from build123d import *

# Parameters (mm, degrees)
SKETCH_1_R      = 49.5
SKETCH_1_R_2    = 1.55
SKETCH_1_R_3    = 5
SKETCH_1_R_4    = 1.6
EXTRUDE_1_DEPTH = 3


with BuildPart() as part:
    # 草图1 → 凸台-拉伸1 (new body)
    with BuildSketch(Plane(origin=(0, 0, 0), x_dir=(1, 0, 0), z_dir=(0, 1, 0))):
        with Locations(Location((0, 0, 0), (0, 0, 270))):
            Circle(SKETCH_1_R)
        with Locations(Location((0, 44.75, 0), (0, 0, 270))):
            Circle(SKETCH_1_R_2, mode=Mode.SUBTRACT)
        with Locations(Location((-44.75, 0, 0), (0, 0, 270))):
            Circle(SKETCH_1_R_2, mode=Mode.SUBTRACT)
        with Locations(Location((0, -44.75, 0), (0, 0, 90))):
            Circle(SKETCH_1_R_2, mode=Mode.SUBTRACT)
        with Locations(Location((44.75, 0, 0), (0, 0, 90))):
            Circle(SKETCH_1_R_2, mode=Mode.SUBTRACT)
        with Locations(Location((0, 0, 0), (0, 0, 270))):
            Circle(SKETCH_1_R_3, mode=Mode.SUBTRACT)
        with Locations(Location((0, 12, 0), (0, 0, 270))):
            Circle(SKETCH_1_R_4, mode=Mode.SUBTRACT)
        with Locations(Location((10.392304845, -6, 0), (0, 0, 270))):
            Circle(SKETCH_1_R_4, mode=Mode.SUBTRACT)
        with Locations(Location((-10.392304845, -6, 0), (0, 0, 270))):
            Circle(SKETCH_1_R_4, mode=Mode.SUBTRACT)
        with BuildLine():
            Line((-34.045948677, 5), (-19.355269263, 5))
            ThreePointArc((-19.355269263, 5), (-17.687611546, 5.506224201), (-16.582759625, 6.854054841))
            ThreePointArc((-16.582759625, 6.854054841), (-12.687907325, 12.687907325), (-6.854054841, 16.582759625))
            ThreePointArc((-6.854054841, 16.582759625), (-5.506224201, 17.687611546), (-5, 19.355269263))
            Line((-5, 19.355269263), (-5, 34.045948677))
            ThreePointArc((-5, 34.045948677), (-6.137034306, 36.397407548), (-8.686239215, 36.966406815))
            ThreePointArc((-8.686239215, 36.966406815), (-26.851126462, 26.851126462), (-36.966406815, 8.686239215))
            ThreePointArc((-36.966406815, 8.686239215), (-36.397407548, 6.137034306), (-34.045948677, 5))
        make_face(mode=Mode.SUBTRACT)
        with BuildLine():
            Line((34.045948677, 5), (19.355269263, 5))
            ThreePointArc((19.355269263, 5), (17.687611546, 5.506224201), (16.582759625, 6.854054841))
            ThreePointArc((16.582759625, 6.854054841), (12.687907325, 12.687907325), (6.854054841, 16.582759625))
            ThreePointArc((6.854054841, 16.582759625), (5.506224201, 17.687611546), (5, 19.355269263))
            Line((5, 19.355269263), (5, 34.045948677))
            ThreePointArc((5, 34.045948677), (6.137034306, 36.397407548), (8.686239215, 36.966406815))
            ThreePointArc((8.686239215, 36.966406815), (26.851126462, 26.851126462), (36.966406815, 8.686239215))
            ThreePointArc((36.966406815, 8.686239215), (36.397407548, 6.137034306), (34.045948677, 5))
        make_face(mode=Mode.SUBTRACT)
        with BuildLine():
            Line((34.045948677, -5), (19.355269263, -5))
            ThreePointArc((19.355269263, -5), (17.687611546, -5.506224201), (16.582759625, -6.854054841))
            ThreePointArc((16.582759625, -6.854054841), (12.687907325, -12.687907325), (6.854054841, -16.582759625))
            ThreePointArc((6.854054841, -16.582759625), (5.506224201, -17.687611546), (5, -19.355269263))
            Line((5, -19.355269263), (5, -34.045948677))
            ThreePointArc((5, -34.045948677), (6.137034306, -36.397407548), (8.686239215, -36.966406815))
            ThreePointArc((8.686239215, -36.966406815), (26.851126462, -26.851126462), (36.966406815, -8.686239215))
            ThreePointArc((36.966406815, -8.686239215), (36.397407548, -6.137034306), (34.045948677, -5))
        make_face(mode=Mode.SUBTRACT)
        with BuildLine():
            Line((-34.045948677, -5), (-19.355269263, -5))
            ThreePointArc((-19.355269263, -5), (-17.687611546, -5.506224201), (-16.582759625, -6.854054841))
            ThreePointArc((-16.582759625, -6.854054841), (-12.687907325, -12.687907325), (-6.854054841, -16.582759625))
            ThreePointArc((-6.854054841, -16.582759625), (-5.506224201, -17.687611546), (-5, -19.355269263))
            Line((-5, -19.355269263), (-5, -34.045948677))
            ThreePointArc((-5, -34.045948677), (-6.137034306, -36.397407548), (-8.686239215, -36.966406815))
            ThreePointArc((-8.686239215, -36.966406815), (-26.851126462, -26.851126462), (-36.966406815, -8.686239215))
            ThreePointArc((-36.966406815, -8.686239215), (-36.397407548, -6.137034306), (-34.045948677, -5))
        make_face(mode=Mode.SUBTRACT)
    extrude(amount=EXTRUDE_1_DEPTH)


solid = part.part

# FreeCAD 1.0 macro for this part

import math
import FreeCAD as App
import Part
import Sketcher

V = App.Vector
Q = App.Units.Quantity

doc = App.newDocument("Part")
body = doc.addObject("PartDesign::Body", "Body")

sketch1 = body.newObject("Sketcher::SketchObject", "Sketch")
sketch1.AttachmentSupport = (doc.getObject("XZ_Plane"), [""])
sketch1.MapMode = "FlatFace"
sketch1.addGeometry(Part.Circle(V(0, 0, 0), V(0, 0, 1), 49.5), False)
sketch1.addGeometry(Part.Circle(V(0, -44.8, 0), V(0, 0, 1), 1.6), False)
sketch1.addGeometry(Part.LineSegment(V(-19.4, -5, 0), V(-34, -5, 0)), False)
sketch1.addGeometry(Part.ArcOfCircle(Part.Circle(V(-34, -8, 0), V(0, 0, 1), 3), math.radians(90), math.radians(193)), False)
sketch1.addGeometry(Part.ArcOfCircle(Part.Circle(V(0, 0, 0), V(0, 0, 1), 38), math.radians(-167), math.radians(-103)), False)
sketch1.addGeometry(Part.ArcOfCircle(Part.Circle(V(-8, -34, 0), V(0, 0, 1), 3), math.radians(-103), math.radians(0)), False)
sketch1.addGeometry(Part.LineSegment(V(-5, -34, 0), V(-5, -19.4, 0)), False)
sketch1.addGeometry(Part.ArcOfCircle(Part.Circle(V(-8, -19.4, 0), V(0, 0, 1), 3), math.radians(0), math.radians(68)), False)
sketch1.addGeometry(Part.ArcOfCircle(Part.Circle(V(0, 0, 0), V(0, 0, 1), 17.9), math.radians(-158), math.radians(-112)), False)
sketch1.addGeometry(Part.ArcOfCircle(Part.Circle(V(-19.4, -8, 0), V(0, 0, 1), 3), math.radians(22), math.radians(90)), False)
sketch1.addGeometry(Part.Circle(V(-44.8, 0, 0), V(0, 0, 1), 1.6), False)
sketch1.addGeometry(Part.ArcOfCircle(Part.Circle(V(-34, 8, 0), V(0, 0, 1), 3), math.radians(167), math.radians(270)), False)
sketch1.addGeometry(Part.LineSegment(V(-34, 5, 0), V(-19.4, 5, 0)), False)
sketch1.addGeometry(Part.ArcOfCircle(Part.Circle(V(-19.4, 8, 0), V(0, 0, 1), 3), math.radians(-90), math.radians(-22)), False)
sketch1.addGeometry(Part.ArcOfCircle(Part.Circle(V(0, 0, 0), V(0, 0, 1), 17.9), math.radians(112), math.radians(158)), False)
sketch1.addGeometry(Part.ArcOfCircle(Part.Circle(V(-8, 19.4, 0), V(0, 0, 1), 3), math.radians(-68), math.radians(0)), False)
sketch1.addGeometry(Part.LineSegment(V(-5, 19.4, 0), V(-5, 34, 0)), False)
sketch1.addGeometry(Part.ArcOfCircle(Part.Circle(V(-8, 34, 0), V(0, 0, 1), 3), math.radians(0), math.radians(103)), False)
sketch1.addGeometry(Part.ArcOfCircle(Part.Circle(V(0, 0, 0), V(0, 0, 1), 38), math.radians(103), math.radians(167)), False)
sketch1.addGeometry(Part.Circle(V(-10.4, 6, 0), V(0, 0, 1), 1.6), False)
sketch1.addGeometry(Part.Circle(V(0, -12, 0), V(0, 0, 1), 1.6), False)
sketch1.addGeometry(Part.ArcOfCircle(Part.Circle(V(34, -8, 0), V(0, 0, 1), 3), math.radians(-13), math.radians(90)), False)
sketch1.addGeometry(Part.LineSegment(V(34, -5, 0), V(19.4, -5, 0)), False)
sketch1.addGeometry(Part.ArcOfCircle(Part.Circle(V(19.4, -8, 0), V(0, 0, 1), 3), math.radians(90), math.radians(158)), False)
sketch1.addGeometry(Part.ArcOfCircle(Part.Circle(V(0, 0, 0), V(0, 0, 1), 17.9), math.radians(-68), math.radians(-22)), False)
sketch1.addGeometry(Part.ArcOfCircle(Part.Circle(V(8, -19.4, 0), V(0, 0, 1), 3), math.radians(112), math.radians(180)), False)
sketch1.addGeometry(Part.LineSegment(V(5, -19.4, 0), V(5, -34, 0)), False)
sketch1.addGeometry(Part.ArcOfCircle(Part.Circle(V(8, -34, 0), V(0, 0, 1), 3), math.radians(180), math.radians(283)), False)
sketch1.addGeometry(Part.ArcOfCircle(Part.Circle(V(0, 0, 0), V(0, 0, 1), 38), math.radians(-77), math.radians(-13)), False)
sketch1.addGeometry(Part.Circle(V(44.8, 0, 0), V(0, 0, 1), 1.6), False)
sketch1.addGeometry(Part.Circle(V(0, 0, 0), V(0, 0, 1), 5), False)
sketch1.addGeometry(Part.Circle(V(10.4, 6, 0), V(0, 0, 1), 1.6), False)
sketch1.addGeometry(Part.LineSegment(V(19.4, 5, 0), V(34, 5, 0)), False)
sketch1.addGeometry(Part.ArcOfCircle(Part.Circle(V(34, 8, 0), V(0, 0, 1), 3), math.radians(-90), math.radians(13)), False)
sketch1.addGeometry(Part.ArcOfCircle(Part.Circle(V(0, 0, 0), V(0, 0, 1), 38), math.radians(13), math.radians(77)), False)
sketch1.addGeometry(Part.ArcOfCircle(Part.Circle(V(8, 34, 0), V(0, 0, 1), 3), math.radians(77), math.radians(180)), False)
sketch1.addGeometry(Part.LineSegment(V(5, 34, 0), V(5, 19.4, 0)), False)
sketch1.addGeometry(Part.ArcOfCircle(Part.Circle(V(8, 19.4, 0), V(0, 0, 1), 3), math.radians(-180), math.radians(-112)), False)
sketch1.addGeometry(Part.ArcOfCircle(Part.Circle(V(0, 0, 0), V(0, 0, 1), 17.9), math.radians(22), math.radians(68)), False)
sketch1.addGeometry(Part.ArcOfCircle(Part.Circle(V(19.4, 8, 0), V(0, 0, 1), 3), math.radians(-158), math.radians(-90)), False)
sketch1.addGeometry(Part.Circle(V(0, 44.8, 0), V(0, 0, 1), 1.6), False)
sketch1.addConstraint(Sketcher.Constraint("Tangent", 2, 2, 3, 1))
sketch1.addConstraint(Sketcher.Constraint("Tangent", 3, 2, 4, 1))
sketch1.addConstraint(Sketcher.Constraint("Tangent", 4, 2, 5, 1))
sketch1.addConstraint(Sketcher.Constraint("Tangent", 5, 2, 6, 1))
sketch1.addConstraint(Sketcher.Constraint("Tangent", 6, 2, 7, 1))
sketch1.addConstraint(Sketcher.Constraint("Tangent", 7, 2, 8, 2))
sketch1.addConstraint(Sketcher.Constraint("Tangent", 8, 1, 9, 1))
sketch1.addConstraint(Sketcher.Constraint("Tangent", 9, 2, 2, 1))
sketch1.addConstraint(Sketcher.Constraint("Tangent", 11, 2, 12, 1))
sketch1.addConstraint(Sketcher.Constraint("Tangent", 12, 2, 13, 1))
sketch1.addConstraint(Sketcher.Constraint("Tangent", 13, 2, 14, 2))
sketch1.addConstraint(Sketcher.Constraint("Tangent", 14, 1, 15, 1))
sketch1.addConstraint(Sketcher.Constraint("Tangent", 15, 2, 16, 1))
sketch1.addConstraint(Sketcher.Constraint("Tangent", 16, 2, 17, 1))
sketch1.addConstraint(Sketcher.Constraint("Tangent", 17, 2, 18, 1))
sketch1.addConstraint(Sketcher.Constraint("Tangent", 18, 2, 11, 1))
sketch1.addConstraint(Sketcher.Constraint("Tangent", 21, 2, 22, 1))
sketch1.addConstraint(Sketcher.Constraint("Tangent", 22, 2, 23, 1))
sketch1.addConstraint(Sketcher.Constraint("Tangent", 23, 2, 24, 2))
sketch1.addConstraint(Sketcher.Constraint("Tangent", 24, 1, 25, 1))
sketch1.addConstraint(Sketcher.Constraint("Tangent", 25, 2, 26, 1))
sketch1.addConstraint(Sketcher.Constraint("Tangent", 26, 2, 27, 1))
sketch1.addConstraint(Sketcher.Constraint("Tangent", 27, 2, 28, 1))
sketch1.addConstraint(Sketcher.Constraint("Tangent", 28, 2, 21, 1))
sketch1.addConstraint(Sketcher.Constraint("Tangent", 32, 2, 33, 1))
sketch1.addConstraint(Sketcher.Constraint("Tangent", 33, 2, 34, 1))
sketch1.addConstraint(Sketcher.Constraint("Tangent", 34, 2, 35, 1))
sketch1.addConstraint(Sketcher.Constraint("Tangent", 35, 2, 36, 1))
sketch1.addConstraint(Sketcher.Constraint("Tangent", 36, 2, 37, 1))
sketch1.addConstraint(Sketcher.Constraint("Tangent", 37, 2, 38, 2))
sketch1.addConstraint(Sketcher.Constraint("Tangent", 38, 1, 39, 1))
sketch1.addConstraint(Sketcher.Constraint("Tangent", 39, 2, 32, 1))
sketch1.addConstraint(Sketcher.Constraint("Horizontal", 2))
sketch1.addConstraint(Sketcher.Constraint("Vertical", 6))
sketch1.addConstraint(Sketcher.Constraint("Horizontal", 12))
sketch1.addConstraint(Sketcher.Constraint("Vertical", 16))
sketch1.addConstraint(Sketcher.Constraint("Horizontal", 22))
sketch1.addConstraint(Sketcher.Constraint("Vertical", 26))
sketch1.addConstraint(Sketcher.Constraint("Horizontal", 32))
sketch1.addConstraint(Sketcher.Constraint("Vertical", 36))
sketch1.addConstraint(Sketcher.Constraint("Coincident", 0, 3, -1, 1))
sketch1.addConstraint(Sketcher.Constraint("Coincident", 4, 3, -1, 1))
sketch1.addConstraint(Sketcher.Constraint("Coincident", 8, 3, -1, 1))
sketch1.addConstraint(Sketcher.Constraint("Coincident", 14, 3, -1, 1))
sketch1.addConstraint(Sketcher.Constraint("Coincident", 18, 3, -1, 1))
sketch1.addConstraint(Sketcher.Constraint("Coincident", 24, 3, -1, 1))
sketch1.addConstraint(Sketcher.Constraint("Coincident", 28, 3, -1, 1))
sketch1.addConstraint(Sketcher.Constraint("Coincident", 30, 3, -1, 1))
sketch1.addConstraint(Sketcher.Constraint("Coincident", 34, 3, -1, 1))
sketch1.addConstraint(Sketcher.Constraint("Coincident", 38, 3, -1, 1))
sketch1.addConstraint(Sketcher.Constraint("Equal", 3, 5))
sketch1.addConstraint(Sketcher.Constraint("Equal", 5, 7))
sketch1.addConstraint(Sketcher.Constraint("Equal", 7, 9))
sketch1.addConstraint(Sketcher.Constraint("Equal", 1, 10))
sketch1.addConstraint(Sketcher.Constraint("Equal", 9, 11))
sketch1.addConstraint(Sketcher.Constraint("Equal", 11, 13))
sketch1.addConstraint(Sketcher.Constraint("Equal", 8, 14))
sketch1.addConstraint(Sketcher.Constraint("Equal", 13, 15))
sketch1.addConstraint(Sketcher.Constraint("Equal", 15, 17))
sketch1.addConstraint(Sketcher.Constraint("Equal", 4, 18))
sketch1.addConstraint(Sketcher.Constraint("Equal", 19, 20))
sketch1.addConstraint(Sketcher.Constraint("Equal", 17, 21))
sketch1.addConstraint(Sketcher.Constraint("Equal", 21, 23))
sketch1.addConstraint(Sketcher.Constraint("Equal", 14, 24))
sketch1.addConstraint(Sketcher.Constraint("Equal", 23, 25))
sketch1.addConstraint(Sketcher.Constraint("Equal", 25, 27))
sketch1.addConstraint(Sketcher.Constraint("Equal", 18, 28))
sketch1.addConstraint(Sketcher.Constraint("Equal", 10, 29))
sketch1.addConstraint(Sketcher.Constraint("Equal", 20, 31))
sketch1.addConstraint(Sketcher.Constraint("Equal", 27, 33))
sketch1.addConstraint(Sketcher.Constraint("Equal", 28, 34))
sketch1.addConstraint(Sketcher.Constraint("Equal", 33, 35))
sketch1.addConstraint(Sketcher.Constraint("Equal", 35, 37))
sketch1.addConstraint(Sketcher.Constraint("Equal", 24, 38))
sketch1.addConstraint(Sketcher.Constraint("Equal", 37, 39))
sketch1.addConstraint(Sketcher.Constraint("Equal", 29, 40))
sketch1.addConstraint(Sketcher.Constraint("Symmetric", 10, 3, 29, 3, -1, 1))
sketch1.addConstraint(Sketcher.Constraint("Symmetric", 1, 3, 40, 3, -1, 1))
sketch1.addConstraint(Sketcher.Constraint("Symmetric", 19, 3, 31, 3, -2))
sketch1.addConstraint(Sketcher.Constraint("PointOnObject", 1, 3, -2))
sketch1.addConstraint(Sketcher.Constraint("PointOnObject", 10, 3, -1))
sketch1.addConstraint(Sketcher.Constraint("PointOnObject", 20, 3, -2))
sketch1.addConstraint(Sketcher.Constraint("Horizontal", 9, 3, 21, 3))
sketch1.addConstraint(Sketcher.Constraint("Horizontal", 7, 3, 25, 3))
sketch1.addConstraint(Sketcher.Constraint("Horizontal", 13, 3, 33, 3))
sketch1.addConstraint(Sketcher.Constraint("Horizontal", 17, 3, 35, 3))
sketch1.addConstraint(Sketcher.Constraint("Vertical", 3, 3, 11, 3))
sketch1.addConstraint(Sketcher.Constraint("Vertical", 7, 3, 15, 3))
sketch1.addConstraint(Sketcher.Constraint("Equal", 32, 6))
sketch1.addConstraint(Sketcher.Constraint("Diameter", 0, Q("99 mm")))
sketch1.addConstraint(Sketcher.Constraint("Diameter", 30, Q("10 mm")))
sketch1.addConstraint(Sketcher.Constraint("Radius", 3, Q("3 mm")))
sketch1.addConstraint(Sketcher.Constraint("Diameter", 1, Q("3.1 mm")))
sketch1.addConstraint(Sketcher.Constraint("Diameter", 19, Q("3.2 mm")))
sketch1.addConstraint(Sketcher.Constraint("DistanceY", 3, 3, -1, 1, Q("8 mm")))
sketch1.addConstraint(Sketcher.Constraint("DistanceY", -1, 1, 19, 3, Q("6 mm")))
sketch1.addConstraint(Sketcher.Constraint("DistanceY", 20, 3, -1, 1, Q("12 mm")))
sketch1.addConstraint(Sketcher.Constraint("DistanceY", 1, 3, -1, 1, Q("44.75 mm")))
sketch1.addConstraint(Sketcher.Constraint("DistanceX", 10, 3, -1, 1, Q("44.75 mm")))
sketch1.addConstraint(Sketcher.Constraint("Radius", 8, Q("17.943411 mm")))
sketch1.addConstraint(Sketcher.Constraint("Radius", 4, Q("37.973227 mm")))
sketch1.addConstraint(Sketcher.Constraint("DistanceX", 19, 3, -1, 1, Q("10.392305 mm")))
pad1 = body.newObject("PartDesign::Pad", "Pad")
pad1.Profile = sketch1
pad1.Length = 3
pad1.Reversed = True

doc.recompute()
